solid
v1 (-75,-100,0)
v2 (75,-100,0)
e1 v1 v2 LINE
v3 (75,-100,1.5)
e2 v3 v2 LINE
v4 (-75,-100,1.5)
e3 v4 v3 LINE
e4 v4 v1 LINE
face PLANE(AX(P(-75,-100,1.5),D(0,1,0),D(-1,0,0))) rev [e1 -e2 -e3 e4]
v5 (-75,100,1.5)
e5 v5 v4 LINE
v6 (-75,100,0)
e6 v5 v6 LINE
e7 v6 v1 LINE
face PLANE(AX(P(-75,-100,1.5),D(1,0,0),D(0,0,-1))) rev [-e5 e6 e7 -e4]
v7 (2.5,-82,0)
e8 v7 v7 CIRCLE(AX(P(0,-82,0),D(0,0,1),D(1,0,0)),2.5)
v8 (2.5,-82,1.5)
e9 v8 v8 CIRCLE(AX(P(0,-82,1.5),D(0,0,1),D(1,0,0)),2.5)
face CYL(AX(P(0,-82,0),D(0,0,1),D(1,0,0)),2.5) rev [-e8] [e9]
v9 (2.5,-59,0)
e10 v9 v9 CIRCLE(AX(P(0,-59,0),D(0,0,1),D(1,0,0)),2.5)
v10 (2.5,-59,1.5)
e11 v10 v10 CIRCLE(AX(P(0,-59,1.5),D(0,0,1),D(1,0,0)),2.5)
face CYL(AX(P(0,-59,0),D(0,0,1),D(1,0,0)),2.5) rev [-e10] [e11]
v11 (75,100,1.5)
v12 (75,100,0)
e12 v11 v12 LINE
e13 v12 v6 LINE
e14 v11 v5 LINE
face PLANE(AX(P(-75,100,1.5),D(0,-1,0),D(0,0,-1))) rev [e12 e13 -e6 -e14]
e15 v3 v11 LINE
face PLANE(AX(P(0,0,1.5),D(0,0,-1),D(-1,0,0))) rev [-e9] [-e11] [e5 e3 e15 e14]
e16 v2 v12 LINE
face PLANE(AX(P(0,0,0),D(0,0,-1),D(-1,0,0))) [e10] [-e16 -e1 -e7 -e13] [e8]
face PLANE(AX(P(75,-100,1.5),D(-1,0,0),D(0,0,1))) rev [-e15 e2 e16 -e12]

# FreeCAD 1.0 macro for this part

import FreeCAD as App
import Part
import Sketcher

doc = App.newDocument("Part")
body = doc.addObject("PartDesign::Body", "Body")

sketch1 = body.newObject("Sketcher::SketchObject", "Sketch")
sketch1.AttachmentSupport = (doc.getObject("XY_Plane"), [""])
sketch1.MapMode = "FlatFace"
sketch1.addGeometry([
    Part.LineSegment(App.Vector(-75, 100, 0), App.Vector(-75, -100, 0)),
    Part.LineSegment(App.Vector(-75, -100, 0), App.Vector(75, -100, 0)),
    Part.LineSegment(App.Vector(75, -100, 0), App.Vector(75, 100, 0)),
    Part.LineSegment(App.Vector(75, 100, 0), App.Vector(-75, 100, 0)),
], False)
sketch1.addConstraint([
    Sketcher.Constraint("Coincident", 0, 2, 1, 1),
    Sketcher.Constraint("Coincident", 1, 2, 2, 1),
    Sketcher.Constraint("Coincident", 2, 2, 3, 1),
    Sketcher.Constraint("Coincident", 3, 2, 0, 1),
    Sketcher.Constraint("Vertical", 0),
    Sketcher.Constraint("Horizontal", 1),
    Sketcher.Constraint("Vertical", 2),
    Sketcher.Constraint("Horizontal", 3),
    Sketcher.Constraint("Symmetric", 0, 2, 2, 2, -1, 1),
    Sketcher.Constraint("DistanceX", 1, 1, 1, 2, 150.0),
    Sketcher.Constraint("DistanceY", 0, 2, 0, 1, 200.0),
])
pad1 = body.newObject("PartDesign::Pad", "Pad")
pad1.Profile = sketch1
pad1.Length = 1.5

sketch2 = body.newObject("Sketcher::SketchObject", "Sketch001")
sketch2.AttachmentSupport = (doc.getObject("XY_Plane"), [""])
sketch2.MapMode = "FlatFace"
sketch2.AttachmentOffset = App.Placement(App.Vector(0, 0, 1.5), App.Rotation())
sketch2.addGeometry([
    Part.Circle(App.Vector(0, -59, 0), App.Vector(0, 0, 1), 2.5),
    Part.Circle(App.Vector(0, -82, 0), App.Vector(0, 0, 1), 2.5),
], False)
sketch2.addConstraint([
    Sketcher.Constraint("Equal", 0, 1),
    Sketcher.Constraint("PointOnObject", 0, 3, -2),
    Sketcher.Constraint("PointOnObject", 1, 3, -2),
    Sketcher.Constraint("Diameter", 0, 5.0),
    Sketcher.Constraint("DistanceY", 0, 3, -1, 1, 59.0),
    Sketcher.Constraint("DistanceY", 1, 3, -1, 1, 82.0),
])
pocket1 = body.newObject("PartDesign::Pocket", "Pocket")
pocket1.Profile = sketch2
pocket1.Length = 1.5

doc.recompute()
